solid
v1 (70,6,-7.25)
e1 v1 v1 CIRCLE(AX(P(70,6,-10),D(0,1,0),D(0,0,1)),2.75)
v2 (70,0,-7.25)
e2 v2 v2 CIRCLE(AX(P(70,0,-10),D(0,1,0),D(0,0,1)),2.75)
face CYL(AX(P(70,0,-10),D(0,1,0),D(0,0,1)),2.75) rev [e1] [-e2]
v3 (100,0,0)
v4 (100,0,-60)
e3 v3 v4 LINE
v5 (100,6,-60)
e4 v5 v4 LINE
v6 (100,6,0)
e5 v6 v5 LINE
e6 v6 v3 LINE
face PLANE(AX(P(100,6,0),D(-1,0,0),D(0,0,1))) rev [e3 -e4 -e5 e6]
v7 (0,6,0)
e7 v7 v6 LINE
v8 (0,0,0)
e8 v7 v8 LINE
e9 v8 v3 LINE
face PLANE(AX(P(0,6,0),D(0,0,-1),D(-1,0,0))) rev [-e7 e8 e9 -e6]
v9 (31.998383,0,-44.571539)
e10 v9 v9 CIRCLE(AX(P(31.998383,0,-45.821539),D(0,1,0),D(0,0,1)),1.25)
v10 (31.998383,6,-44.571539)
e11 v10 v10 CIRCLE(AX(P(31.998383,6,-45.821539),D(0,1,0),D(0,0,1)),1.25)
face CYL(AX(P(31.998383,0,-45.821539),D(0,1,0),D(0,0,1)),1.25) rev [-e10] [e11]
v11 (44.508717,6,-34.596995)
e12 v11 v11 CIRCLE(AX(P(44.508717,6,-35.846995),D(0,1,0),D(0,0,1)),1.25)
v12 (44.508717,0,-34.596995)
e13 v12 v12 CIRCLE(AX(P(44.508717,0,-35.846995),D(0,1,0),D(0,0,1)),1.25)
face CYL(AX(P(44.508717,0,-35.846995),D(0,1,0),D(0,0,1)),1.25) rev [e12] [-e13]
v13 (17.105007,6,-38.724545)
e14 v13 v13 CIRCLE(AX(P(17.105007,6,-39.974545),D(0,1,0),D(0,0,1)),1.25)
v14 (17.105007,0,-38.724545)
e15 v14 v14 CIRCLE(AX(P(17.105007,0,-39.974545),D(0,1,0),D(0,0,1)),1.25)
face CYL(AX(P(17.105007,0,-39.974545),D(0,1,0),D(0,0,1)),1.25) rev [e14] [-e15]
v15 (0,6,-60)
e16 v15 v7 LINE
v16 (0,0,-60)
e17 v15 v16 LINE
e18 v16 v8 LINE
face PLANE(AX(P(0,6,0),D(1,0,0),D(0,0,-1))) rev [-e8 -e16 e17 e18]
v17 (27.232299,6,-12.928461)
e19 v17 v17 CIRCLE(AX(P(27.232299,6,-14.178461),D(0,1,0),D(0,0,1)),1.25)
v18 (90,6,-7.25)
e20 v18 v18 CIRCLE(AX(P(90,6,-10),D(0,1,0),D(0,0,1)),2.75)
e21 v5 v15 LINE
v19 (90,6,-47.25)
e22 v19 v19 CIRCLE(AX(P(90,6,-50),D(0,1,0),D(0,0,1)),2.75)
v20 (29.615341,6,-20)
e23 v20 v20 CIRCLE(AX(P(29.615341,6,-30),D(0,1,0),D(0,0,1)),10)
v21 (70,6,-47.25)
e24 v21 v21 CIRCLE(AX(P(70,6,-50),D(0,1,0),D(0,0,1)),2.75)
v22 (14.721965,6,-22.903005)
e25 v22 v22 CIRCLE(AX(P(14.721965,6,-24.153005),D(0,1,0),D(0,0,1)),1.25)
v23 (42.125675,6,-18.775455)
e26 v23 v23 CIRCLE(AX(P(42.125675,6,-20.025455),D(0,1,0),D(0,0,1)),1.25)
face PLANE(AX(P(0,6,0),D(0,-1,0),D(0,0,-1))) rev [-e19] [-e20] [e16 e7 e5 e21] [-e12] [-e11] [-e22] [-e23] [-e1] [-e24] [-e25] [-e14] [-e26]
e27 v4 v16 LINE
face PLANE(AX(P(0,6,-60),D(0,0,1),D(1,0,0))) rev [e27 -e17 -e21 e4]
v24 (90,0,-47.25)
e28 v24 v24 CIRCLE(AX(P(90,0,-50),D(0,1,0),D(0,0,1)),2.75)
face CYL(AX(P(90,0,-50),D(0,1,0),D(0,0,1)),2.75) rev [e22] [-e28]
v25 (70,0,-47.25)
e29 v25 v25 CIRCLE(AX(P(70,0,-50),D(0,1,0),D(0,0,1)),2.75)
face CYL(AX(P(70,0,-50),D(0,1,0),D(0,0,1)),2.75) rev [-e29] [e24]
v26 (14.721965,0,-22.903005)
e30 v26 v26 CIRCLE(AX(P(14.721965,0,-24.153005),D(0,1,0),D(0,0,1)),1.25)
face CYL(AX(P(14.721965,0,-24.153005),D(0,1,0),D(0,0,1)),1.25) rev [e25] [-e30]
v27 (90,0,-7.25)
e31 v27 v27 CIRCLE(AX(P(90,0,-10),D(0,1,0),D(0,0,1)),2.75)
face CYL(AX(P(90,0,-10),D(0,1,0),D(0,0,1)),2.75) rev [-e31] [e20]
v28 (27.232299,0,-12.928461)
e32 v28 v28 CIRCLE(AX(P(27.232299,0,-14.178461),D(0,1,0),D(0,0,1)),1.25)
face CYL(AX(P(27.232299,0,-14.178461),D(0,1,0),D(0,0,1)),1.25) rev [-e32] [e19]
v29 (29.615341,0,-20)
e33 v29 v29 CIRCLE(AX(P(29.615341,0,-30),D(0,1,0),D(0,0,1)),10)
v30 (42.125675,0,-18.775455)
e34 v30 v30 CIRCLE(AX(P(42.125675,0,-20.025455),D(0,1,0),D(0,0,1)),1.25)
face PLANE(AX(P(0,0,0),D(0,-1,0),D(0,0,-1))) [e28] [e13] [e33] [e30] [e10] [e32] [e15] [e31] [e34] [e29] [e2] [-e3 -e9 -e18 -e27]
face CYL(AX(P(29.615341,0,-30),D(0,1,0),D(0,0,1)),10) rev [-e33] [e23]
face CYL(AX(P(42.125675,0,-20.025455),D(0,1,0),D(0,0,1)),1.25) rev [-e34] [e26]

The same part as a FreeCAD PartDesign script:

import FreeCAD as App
import Part
import Sketcher
from FreeCAD import Vector
Q = App.Units.Quantity


def add_polygon(sketch, points):
    """Adds a closed chain of lines whose ends are joined by coincident constraints."""
    first, n = sketch.GeometryCount, len(points)
    for a, b in zip(points, points[1:] + points[:1]):
        sketch.addGeometry(Part.LineSegment(App.Vector(*a, 0), App.Vector(*b, 0)), False)
    for i in range(n):
        sketch.addConstraint(Sketcher.Constraint("Coincident", first + i, 2, first + (i + 1) % n, 1))

doc = App.newDocument("Part")
params = doc.addObject("Spreadsheet::Sheet", "Params")
for row, (alias, value) in enumerate([
    ("sketch1_width", "100 mm"),
    ("sketch1_height", "60 mm"),
    ("pad1_length", "6 mm"),
    ("sketch2_diameter", "20 mm"),
    ("sketch2_diameter2", "5.5 mm"),
    ("pocket1_length", "6 mm"),
    ("sketch3_diameter", "2.5 mm"),
], start=1):
    params.set(f"A{row}", alias)
    params.set(f"B{row}", "=" + value)
    params.setAlias(f"B{row}", alias)

body = doc.addObject("PartDesign::Body", "Body")

# Sketch on XZ plane
sketch1 = body.newObject("Sketcher::SketchObject", "Sketch")
sketch1.AttachmentSupport = (doc.getObject("XZ_Plane"), [""])
sketch1.MapMode = "FlatFace"
add_polygon(sketch1, [(0, -60), (0, 0), (100, 0), (100, -60)])  # lines 0-3
sketch1.addConstraint(Sketcher.Constraint("Vertical", 0))
sketch1.addConstraint(Sketcher.Constraint("Horizontal", 1))
sketch1.addConstraint(Sketcher.Constraint("Vertical", 2))
sketch1.addConstraint(Sketcher.Constraint("Horizontal", 3))
sketch1.addConstraint(Sketcher.Constraint("Coincident", 0, 2, -1, 1))
sketch1.addConstraint(Sketcher.Constraint("DistanceX", 1, 1, 1, 2, Q("100 mm")))
sketch1.addConstraint(Sketcher.Constraint("DistanceY", 0, 1, 0, 2, Q("60 mm")))
sketch1.setExpression("Constraints[9]", "Params.sketch1_width")
sketch1.setExpression("Constraints[10]", "Params.sketch1_height")
pad1 = body.newObject("PartDesign::Pad", "Pad")
pad1.Profile = sketch1
pad1.setExpression("Length", "Params.pad1_length")
pad1.Reversed = True

# Sketch on XZ plane
sketch2 = body.newObject("Sketcher::SketchObject", "Sketch001")
sketch2.AttachmentSupport = (doc.getObject("XZ_Plane"), [""])
sketch2.MapMode = "FlatFace"
sketch2.AttachmentOffset = App.Placement(Vector(0, 0, -6), App.Rotation())
sketch2.addGeometry(Part.Circle(Vector(29.6, -30, 0), Vector(0, 0, 1), 10), False)
sketch2.addGeometry(Part.Circle(Vector(70, -50, 0), Vector(0, 0, 1), 2.8), False)
sketch2.addGeometry(Part.Circle(Vector(90, -50, 0), Vector(0, 0, 1), 2.8), False)
sketch2.addGeometry(Part.Circle(Vector(70, -10, 0), Vector(0, 0, 1), 2.8), False)
sketch2.addGeometry(Part.Circle(Vector(90, -10, 0), Vector(0, 0, 1), 2.8), False)
sketch2.addConstraint(Sketcher.Constraint("Equal", 1, 2))
sketch2.addConstraint(Sketcher.Constraint("Equal", 2, 3))
sketch2.addConstraint(Sketcher.Constraint("Equal", 3, 4))
sketch2.addConstraint(Sketcher.Constraint("Horizontal", 1, 3, 2, 3))
sketch2.addConstraint(Sketcher.Constraint("Horizontal", 3, 3, 4, 3))
sketch2.addConstraint(Sketcher.Constraint("Vertical", 1, 3, 3, 3))
sketch2.addConstraint(Sketcher.Constraint("Vertical", 2, 3, 4, 3))
sketch2.addConstraint(Sketcher.Constraint("Diameter", 0, Q("20 mm")))
sketch2.addConstraint(Sketcher.Constraint("Diameter", 1, Q("5.5 mm")))
sketch2.addConstraint(Sketcher.Constraint("DistanceY", 0, 3, -1, 1, Q("30 mm")))
sketch2.addConstraint(Sketcher.Constraint("DistanceX", -1, 1, 1, 3, Q("70 mm")))
sketch2.addConstraint(Sketcher.Constraint("DistanceY", 1, 3, -1, 1, Q("50 mm")))
sketch2.addConstraint(Sketcher.Constraint("DistanceX", -1, 1, 2, 3, Q("90 mm")))
sketch2.addConstraint(Sketcher.Constraint("DistanceY", 3, 3, -1, 1, Q("10 mm")))
sketch2.addConstraint(Sketcher.Constraint("DistanceX", -1, 1, 0, 3, Q("29.615341 mm")))
sketch2.setExpression("Constraints[7]", "Params.sketch2_diameter")
sketch2.setExpression("Constraints[8]", "Params.sketch2_diameter2")
pocket1 = body.newObject("PartDesign::Pocket", "Pocket")
pocket1.Profile = sketch2
pocket1.setExpression("Length", "Params.pocket1_length")
pocket1.Reversed = True

# Sketch on XZ plane
sketch3 = body.newObject("Sketcher::SketchObject", "Sketch002")
sketch3.AttachmentSupport = (doc.getObject("XZ_Plane"), [""])
sketch3.MapMode = "FlatFace"
sketch3.AttachmentOffset = App.Placement(Vector(0, 0, -6), App.Rotation())
sketch3.addGeometry(Part.Circle(Vector(32, -45.8, 0), Vector(0, 0, 1), 1.2), False)
sketch3.addGeometry(Part.Circle(Vector(44.5, -35.8, 0), Vector(0, 0, 1), 1.2), False)
sketch3.addGeometry(Part.Circle(Vector(42.1, -20, 0), Vector(0, 0, 1), 1.2), False)
sketch3.addGeometry(Part.Circle(Vector(27.2, -14.2, 0), Vector(0, 0, 1), 1.2), False)
sketch3.addGeometry(Part.Circle(Vector(14.7, -24.2, 0), Vector(0, 0, 1), 1.2), False)
sketch3.addGeometry(Part.Circle(Vector(17.1, -40, 0), Vector(0, 0, 1), 1.2), False)
sketch3.addConstraint(Sketcher.Constraint("Equal", 0, 1))
sketch3.addConstraint(Sketcher.Constraint("Equal", 1, 2))
sketch3.addConstraint(Sketcher.Constraint("Equal", 2, 3))
sketch3.addConstraint(Sketcher.Constraint("Equal", 3, 4))
sketch3.addConstraint(Sketcher.Constraint("Equal", 4, 5))
sketch3.addConstraint(Sketcher.Constraint("Diameter", 0, Q("2.5 mm")))
sketch3.addConstraint(Sketcher.Constraint("DistanceX", -1, 1, 3, 3, Q("27.232299 mm")))
sketch3.addConstraint(Sketcher.Constraint("DistanceY", 0, 3, -1, 1, Q("45.821539 mm")))
sketch3.addConstraint(Sketcher.Constraint("DistanceY", 3, 3, -1, 1, Q("14.178461 mm")))
sketch3.addConstraint(Sketcher.Constraint("DistanceX", 2, 3, 1, 3, Q("2.383042 mm")))
sketch3.addConstraint(Sketcher.Constraint("DistanceY", 1, 3, 2, 3, Q("15.821539 mm")))
sketch3.addConstraint(Sketcher.Constraint("DistanceX", 4, 3, 2, 3, Q("27.40371 mm")))
sketch3.addConstraint(Sketcher.Constraint("DistanceY", 4, 3, 2, 3, Q("4.12755 mm")))
sketch3.addConstraint(Sketcher.Constraint("DistanceX", 4, 3, 5, 3, Q("2.383042 mm")))
sketch3.addConstraint(Sketcher.Constraint("DistanceY", 5, 3, 4, 3, Q("15.821539 mm")))
sketch3.addConstraint(Sketcher.Constraint("DistanceX", -1, 1, 0, 3, Q("31.998383 mm")))
sketch3.addConstraint(Sketcher.Constraint("DistanceX", -1, 1, 1, 3, Q("44.508717 mm")))
sketch3.addConstraint(Sketcher.Constraint("DistanceY", 1, 3, -1, 1, Q("35.846995 mm")))
sketch3.setExpression("Constraints[5]", "Params.sketch3_diameter")
pocket2 = body.newObject("PartDesign::Pocket", "Pocket001")
pocket2.Profile = sketch3
pocket2.Type = "ThroughAll"
pocket2.Reversed = True

doc.recompute()
